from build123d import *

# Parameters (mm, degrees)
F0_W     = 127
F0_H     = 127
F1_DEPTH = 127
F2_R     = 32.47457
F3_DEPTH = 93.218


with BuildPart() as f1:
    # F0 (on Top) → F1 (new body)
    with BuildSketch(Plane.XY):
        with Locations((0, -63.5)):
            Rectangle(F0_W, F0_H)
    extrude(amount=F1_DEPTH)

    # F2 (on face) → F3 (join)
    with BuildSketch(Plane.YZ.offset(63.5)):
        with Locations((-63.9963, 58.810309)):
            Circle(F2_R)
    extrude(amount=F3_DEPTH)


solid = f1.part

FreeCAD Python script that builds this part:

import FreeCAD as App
import Part
import Sketcher

V = App.Vector
Q = App.Units.Quantity

doc = App.newDocument("Part")
body = doc.addObject("PartDesign::Body", "Body")

# Sketch on XY plane
sketch1 = doc.addObject("Sketcher::SketchObject", "Sketch")
body.addObject(sketch1)
sketch1.AttachmentSupport = (doc.XY_Plane, [""])
sketch1.MapMode = "FlatFace"
sketch1.addGeometry(Part.LineSegment(V(-63.5, 0, 0), V(-63.5, -127, 0)), False)
sketch1.addGeometry(Part.LineSegment(V(-63.5, -127, 0), V(63.5, -127, 0)), False)
sketch1.addGeometry(Part.LineSegment(V(63.5, -127, 0), V(63.5, 0, 0)), False)
sketch1.addGeometry(Part.LineSegment(V(63.5, 0, 0), V(-63.5, 0, 0)), False)
sketch1.addConstraint(Sketcher.Constraint("Coincident", 0, 2, 1, 1))
sketch1.addConstraint(Sketcher.Constraint("Coincident", 1, 2, 2, 1))
sketch1.addConstraint(Sketcher.Constraint("Coincident", 2, 2, 3, 1))
sketch1.addConstraint(Sketcher.Constraint("Coincident", 3, 2, 0, 1))
sketch1.addConstraint(Sketcher.Constraint("Vertical", 0))
sketch1.addConstraint(Sketcher.Constraint("Horizontal", 1))
sketch1.addConstraint(Sketcher.Constraint("Vertical", 2))
sketch1.addConstraint(Sketcher.Constraint("Horizontal", 3))
sketch1.addConstraint(Sketcher.Constraint("Symmetric", 2, 2, 3, 2, -1, 1))
sketch1.addConstraint(Sketcher.Constraint("Equal", 3, 0))
sketch1.addConstraint(Sketcher.Constraint("DistanceX", 1, 1, 1, 2, Q("5 in")))
pad1 = doc.addObject("PartDesign::Pad", "Pad")
body.addObject(pad1)
pad1.Profile = sketch1
pad1.Length = Q("5 in")

# Sketch on YZ plane
sketch2 = doc.addObject("Sketcher::SketchObject", "Sketch001")
body.addObject(sketch2)
sketch2.AttachmentSupport = (doc.YZ_Plane, [""])
sketch2.MapMode = "FlatFace"
sketch2.AttachmentOffset = App.Placement(V(0, 0, 2.5 * 25.4), App.Rotation())
sketch2.addGeometry(Part.Circle(V(-63.9963, 58.810309, 0), V(0, 0, 1), 32.47457), False)
sketch2.addConstraint(Sketcher.Constraint("Diameter", 0, 64.94914))
sketch2.addConstraint(Sketcher.Constraint("DistanceX", 0, 3, -1, 1, 63.9963))
sketch2.addConstraint(Sketcher.Constraint("DistanceY", -1, 1, 0, 3, 58.810309))
pad2 = doc.addObject("PartDesign::Pad", "Pad001")
body.addObject(pad2)
pad2.Profile = sketch2
pad2.Length = Q("3.67 in")

doc.recompute()
